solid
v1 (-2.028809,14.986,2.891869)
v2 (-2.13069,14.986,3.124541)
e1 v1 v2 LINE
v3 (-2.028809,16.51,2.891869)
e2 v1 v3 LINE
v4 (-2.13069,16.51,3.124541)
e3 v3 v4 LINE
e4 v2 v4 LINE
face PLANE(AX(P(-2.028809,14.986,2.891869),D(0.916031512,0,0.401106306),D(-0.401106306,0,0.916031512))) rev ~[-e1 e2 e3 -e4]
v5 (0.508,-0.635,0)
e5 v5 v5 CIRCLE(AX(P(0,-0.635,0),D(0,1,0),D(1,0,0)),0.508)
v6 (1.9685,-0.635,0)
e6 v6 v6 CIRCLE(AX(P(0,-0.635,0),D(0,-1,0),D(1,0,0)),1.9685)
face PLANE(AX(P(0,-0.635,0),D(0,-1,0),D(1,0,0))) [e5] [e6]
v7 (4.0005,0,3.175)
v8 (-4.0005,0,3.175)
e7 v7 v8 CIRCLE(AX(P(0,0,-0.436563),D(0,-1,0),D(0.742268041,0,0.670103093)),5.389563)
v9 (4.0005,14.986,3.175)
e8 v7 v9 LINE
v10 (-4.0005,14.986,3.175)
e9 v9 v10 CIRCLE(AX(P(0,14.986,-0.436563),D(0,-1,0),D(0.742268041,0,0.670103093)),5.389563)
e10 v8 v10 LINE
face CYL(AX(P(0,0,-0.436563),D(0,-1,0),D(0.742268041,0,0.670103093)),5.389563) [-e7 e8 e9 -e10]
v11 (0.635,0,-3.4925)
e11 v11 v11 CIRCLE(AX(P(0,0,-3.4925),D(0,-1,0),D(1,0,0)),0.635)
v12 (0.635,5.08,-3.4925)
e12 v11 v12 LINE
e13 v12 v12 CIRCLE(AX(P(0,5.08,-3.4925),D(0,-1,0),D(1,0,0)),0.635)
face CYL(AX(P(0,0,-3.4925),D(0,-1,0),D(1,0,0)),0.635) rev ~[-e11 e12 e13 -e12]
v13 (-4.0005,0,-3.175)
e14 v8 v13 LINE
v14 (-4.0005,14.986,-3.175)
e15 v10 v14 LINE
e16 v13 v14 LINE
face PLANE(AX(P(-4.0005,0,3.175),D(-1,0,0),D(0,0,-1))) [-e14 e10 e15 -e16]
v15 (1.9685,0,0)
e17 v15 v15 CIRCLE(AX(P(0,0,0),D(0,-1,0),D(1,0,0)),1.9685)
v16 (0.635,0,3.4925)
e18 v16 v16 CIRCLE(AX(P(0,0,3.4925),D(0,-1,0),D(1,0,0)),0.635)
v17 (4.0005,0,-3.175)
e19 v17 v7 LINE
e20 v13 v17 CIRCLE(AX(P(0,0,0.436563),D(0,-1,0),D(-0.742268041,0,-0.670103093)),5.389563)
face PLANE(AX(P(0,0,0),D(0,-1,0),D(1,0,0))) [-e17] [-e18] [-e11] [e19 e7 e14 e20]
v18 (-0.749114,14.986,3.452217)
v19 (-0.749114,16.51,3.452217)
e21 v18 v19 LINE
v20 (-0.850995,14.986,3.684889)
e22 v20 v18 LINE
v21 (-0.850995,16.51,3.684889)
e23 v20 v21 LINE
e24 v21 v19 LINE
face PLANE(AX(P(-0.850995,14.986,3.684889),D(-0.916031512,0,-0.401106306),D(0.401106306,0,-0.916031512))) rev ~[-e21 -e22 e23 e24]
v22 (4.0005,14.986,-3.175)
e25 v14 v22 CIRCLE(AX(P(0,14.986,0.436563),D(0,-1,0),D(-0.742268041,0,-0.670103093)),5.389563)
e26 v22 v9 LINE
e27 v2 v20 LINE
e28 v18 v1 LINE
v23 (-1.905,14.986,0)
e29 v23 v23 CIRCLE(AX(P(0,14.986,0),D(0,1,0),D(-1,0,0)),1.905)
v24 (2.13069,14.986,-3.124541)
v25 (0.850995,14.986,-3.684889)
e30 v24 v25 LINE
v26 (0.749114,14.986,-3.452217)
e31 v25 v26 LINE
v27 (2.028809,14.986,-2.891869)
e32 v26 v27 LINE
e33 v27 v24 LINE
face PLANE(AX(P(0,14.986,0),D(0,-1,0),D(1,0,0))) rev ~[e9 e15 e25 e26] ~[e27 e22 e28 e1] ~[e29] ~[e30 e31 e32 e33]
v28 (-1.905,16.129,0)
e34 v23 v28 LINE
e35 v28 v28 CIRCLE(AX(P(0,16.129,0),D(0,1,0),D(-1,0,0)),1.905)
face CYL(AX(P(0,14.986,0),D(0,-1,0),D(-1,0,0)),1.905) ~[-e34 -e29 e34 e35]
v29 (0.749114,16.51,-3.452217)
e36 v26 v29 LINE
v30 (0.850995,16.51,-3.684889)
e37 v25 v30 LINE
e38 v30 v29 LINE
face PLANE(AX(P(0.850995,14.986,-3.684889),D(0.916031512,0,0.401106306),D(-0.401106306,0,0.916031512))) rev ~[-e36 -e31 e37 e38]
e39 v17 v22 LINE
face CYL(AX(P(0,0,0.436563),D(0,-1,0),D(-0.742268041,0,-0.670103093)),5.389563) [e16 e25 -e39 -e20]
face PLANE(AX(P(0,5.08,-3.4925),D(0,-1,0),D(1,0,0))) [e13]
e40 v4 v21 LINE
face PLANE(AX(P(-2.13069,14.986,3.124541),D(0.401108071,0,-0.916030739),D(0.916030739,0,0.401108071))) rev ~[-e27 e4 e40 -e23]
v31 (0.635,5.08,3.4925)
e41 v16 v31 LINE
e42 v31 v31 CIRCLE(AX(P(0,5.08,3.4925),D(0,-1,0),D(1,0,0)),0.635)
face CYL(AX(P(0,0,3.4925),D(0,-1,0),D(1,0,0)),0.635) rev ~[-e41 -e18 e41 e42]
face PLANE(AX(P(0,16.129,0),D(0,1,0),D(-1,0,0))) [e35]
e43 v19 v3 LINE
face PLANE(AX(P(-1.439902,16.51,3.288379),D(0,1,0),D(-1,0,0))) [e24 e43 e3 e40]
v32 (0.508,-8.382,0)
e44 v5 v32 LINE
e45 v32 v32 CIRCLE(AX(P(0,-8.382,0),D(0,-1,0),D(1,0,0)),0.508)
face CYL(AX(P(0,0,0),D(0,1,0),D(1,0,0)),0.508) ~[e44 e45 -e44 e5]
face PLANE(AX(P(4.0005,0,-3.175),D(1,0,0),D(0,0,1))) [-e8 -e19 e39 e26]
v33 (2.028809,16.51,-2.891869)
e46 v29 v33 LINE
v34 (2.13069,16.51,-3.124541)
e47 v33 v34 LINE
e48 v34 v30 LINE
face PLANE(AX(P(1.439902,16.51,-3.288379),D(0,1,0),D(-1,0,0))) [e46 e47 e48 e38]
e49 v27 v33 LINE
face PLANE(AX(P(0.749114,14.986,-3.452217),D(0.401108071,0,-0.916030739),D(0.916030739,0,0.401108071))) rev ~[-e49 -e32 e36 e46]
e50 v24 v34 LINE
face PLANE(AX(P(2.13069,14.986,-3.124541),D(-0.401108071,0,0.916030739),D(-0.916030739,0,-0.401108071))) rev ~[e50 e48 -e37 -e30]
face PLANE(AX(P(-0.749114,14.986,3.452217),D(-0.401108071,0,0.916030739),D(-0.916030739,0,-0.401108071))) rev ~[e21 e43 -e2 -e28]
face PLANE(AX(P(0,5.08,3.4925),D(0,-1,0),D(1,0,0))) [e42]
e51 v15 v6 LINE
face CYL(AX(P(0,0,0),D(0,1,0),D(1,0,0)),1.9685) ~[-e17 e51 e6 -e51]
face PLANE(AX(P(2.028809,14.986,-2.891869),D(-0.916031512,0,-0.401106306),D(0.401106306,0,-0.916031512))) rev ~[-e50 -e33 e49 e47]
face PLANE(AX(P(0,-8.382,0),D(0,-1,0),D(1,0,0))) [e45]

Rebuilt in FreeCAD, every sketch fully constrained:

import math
import FreeCAD as App
import Part
import Sketcher
from FreeCAD import Vector
Q = App.Units.Quantity


def add_polygon(sketch, points):
    """Adds a closed chain of lines whose ends are joined by coincident constraints."""
    first, n = sketch.GeometryCount, len(points)
    for a, b in zip(points, points[1:] + points[:1]):
        sketch.addGeometry(Part.LineSegment(App.Vector(*a, 0), App.Vector(*b, 0)), False)
    for i in range(n):
        sketch.addConstraint(Sketcher.Constraint("Coincident", first + i, 2, first + (i + 1) % n, 1))

doc = App.newDocument("Part")
body = doc.addObject("PartDesign::Body", "Body")

sketch1 = body.newObject("Sketcher::SketchObject", "Sketch")
sketch1.AttachmentSupport = (doc.getObject("XZ_Plane"), [""])
sketch1.MapMode = "FlatFace"
sketch1.addGeometry(Part.LineSegment(Vector(4, -3, 0), Vector(4, 3, 0)), False)
sketch1.addGeometry(Part.ArcOfCircle(Part.Circle(Vector(0, 0, 0), Vector(0, 0, 1), 5), math.radians(42), math.radians(138)), False)
sketch1.addGeometry(Part.LineSegment(Vector(-4, 3, 0), Vector(-4, -3, 0)), False)
sketch1.addGeometry(Part.ArcOfCircle(Part.Circle(Vector(0, 0, 0), Vector(0, 0, 1), 5), math.radians(-138), math.radians(-42)), False)
sketch1.addConstraint(Sketcher.Constraint("Coincident", 0, 2, 1, 1))
sketch1.addConstraint(Sketcher.Constraint("Coincident", 1, 2, 2, 1))
sketch1.addConstraint(Sketcher.Constraint("Coincident", 2, 2, 3, 1))
sketch1.addConstraint(Sketcher.Constraint("Coincident", 3, 2, 0, 1))
sketch1.addConstraint(Sketcher.Constraint("Vertical", 0))
sketch1.addConstraint(Sketcher.Constraint("Vertical", 2))
sketch1.addConstraint(Sketcher.Constraint("Equal", 1, 3))
sketch1.addConstraint(Sketcher.Constraint("Symmetric", 1, 3, 3, 3, -1, 1))
sketch1.addConstraint(Sketcher.Constraint("Symmetric", 0, 2, 1, 2, -2))
sketch1.addConstraint(Sketcher.Constraint("DistanceY", 0, 1, 0, 2, Q("0.25 in")))
sketch1.addConstraint(Sketcher.Constraint("DistanceX", 1, 2, 0, 2, Q("0.315 in")))
sketch1.addConstraint(Sketcher.Constraint("Radius", 1, Q("5.389563 mm")))
pad1 = body.newObject("PartDesign::Pad", "Pad")
pad1.Profile = sketch1
pad1.Length = Q("0.59 in")
pad1.Reversed = True

sketch2 = body.newObject("Sketcher::SketchObject", "Sketch001")
sketch2.AttachmentSupport = (doc.getObject("XZ_Plane"), [""])
sketch2.MapMode = "FlatFace"
sketch2.addGeometry(Part.Circle(Vector(0, 0, 0), Vector(0, 0, 1), 0.5), False)
sketch2.addConstraint(Sketcher.Constraint("Coincident", 0, 3, -1, 1))
sketch2.addConstraint(Sketcher.Constraint("Diameter", 0, Q("0.04 in")))
pad2 = body.newObject("PartDesign::Pad", "Pad001")
pad2.Profile = sketch2
pad2.Length = Q("0.33 in")

sketch3 = body.newObject("Sketcher::SketchObject", "Sketch002")
sketch3.AttachmentSupport = (doc.getObject("XZ_Plane"), [""])
sketch3.MapMode = "FlatFace"
sketch3.addGeometry(Part.Circle(Vector(0, 3.5, 0), Vector(0, 0, 1), 0.6), False)
sketch3.addGeometry(Part.Circle(Vector(0, -3.5, 0), Vector(0, 0, 1), 0.6), False)
sketch3.addConstraint(Sketcher.Constraint("Equal", 0, 1))
sketch3.addConstraint(Sketcher.Constraint("Symmetric", 0, 3, 1, 3, -1, 1))
sketch3.addConstraint(Sketcher.Constraint("PointOnObject", 0, 3, -2))
sketch3.addConstraint(Sketcher.Constraint("Diameter", 0, Q("0.05 in")))
sketch3.addConstraint(Sketcher.Constraint("DistanceY", 1, 3, 0, 3, Q("0.275 in")))
pocket1 = body.newObject("PartDesign::Pocket", "Pocket")
pocket1.Profile = sketch3
pocket1.Length = Q("0.2 in")

sketch4 = body.newObject("Sketcher::SketchObject", "Sketch003")
sketch4.AttachmentSupport = (doc.getObject("XZ_Plane"), [""])
sketch4.MapMode = "FlatFace"
sketch4.addGeometry(Part.Circle(Vector(0, 0, 0), Vector(0, 0, 1), 2), False)
sketch4.addConstraint(Sketcher.Constraint("Coincident", 0, 3, -1, 1))
sketch4.addConstraint(Sketcher.Constraint("Diameter", 0, Q("0.155 in")))
pad3 = body.newObject("PartDesign::Pad", "Pad002")
pad3.Profile = sketch4
pad3.Length = Q("0.025 in")

sketch5 = body.newObject("Sketcher::SketchObject", "Sketch004")
sketch5.AttachmentSupport = (doc.getObject("XZ_Plane"), [""])
sketch5.MapMode = "FlatFace"
sketch5.AttachmentOffset = App.Placement(Vector(0, 0, -0.59 * 25.4), App.Rotation())
sketch5.addGeometry(Part.Circle(Vector(0, 0, 0), Vector(0, 0, 1), 1.9), False)
sketch5.addConstraint(Sketcher.Constraint("Coincident", 0, 3, -1, 1))
sketch5.addConstraint(Sketcher.Constraint("Diameter", 0, Q("0.15 in")))
pad4 = body.newObject("PartDesign::Pad", "Pad003")
pad4.Profile = sketch5
pad4.Length = Q("0.045 in")
pad4.Reversed = True

sketch6 = body.newObject("Sketcher::SketchObject", "Sketch005")
sketch6.AttachmentSupport = (doc.getObject("XZ_Plane"), [""])
sketch6.MapMode = "FlatFace"
sketch6.AttachmentOffset = App.Placement(Vector(0, 0, -0.59 * 25.4), App.Rotation())
add_polygon(sketch6, [(2.03, -2.89), (2.13, -3.12), (0.85, -3.68), (0.75, -3.45)])
add_polygon(sketch6, [(-0.85, 3.68), (-0.75, 3.45), (-2.03, 2.89), (-2.13, 3.12)])
sketch6.addConstraint(Sketcher.Constraint("Symmetric", 2, 2, 4, 2, -1, 1))
sketch6.addConstraint(Sketcher.Constraint("Symmetric", 3, 2, 5, 2, -1, 1))
sketch6.addConstraint(Sketcher.Constraint("Symmetric", 0, 2, 6, 2, -1, 1))
sketch6.addConstraint(Sketcher.Constraint("Symmetric", 1, 2, 7, 2, -1, 1))
sketch6.addConstraint(Sketcher.Constraint("Perpendicular", 0, 1))
sketch6.addConstraint(Sketcher.Constraint("Perpendicular", 1, 2))
sketch6.addConstraint(Sketcher.Constraint("Perpendicular", 2, 3))
sketch6.addConstraint(Sketcher.Constraint("Distance", 0, Q("0.01 in")))
sketch6.addConstraint(Sketcher.Constraint("Distance", 1, Q("0.055 in")))
sketch6.addConstraint(Sketcher.Constraint("DistanceX", 5, 2, 0, 2, Q("4.159499 mm")))
sketch6.addConstraint(Sketcher.Constraint("DistanceX", -1, 1, 0, 2, Q("2.13069 mm")))
sketch6.addConstraint(Sketcher.Constraint("DistanceY", 0, 2, -1, 1, Q("3.124541 mm")))
pad5 = body.newObject("PartDesign::Pad", "Pad004")
pad5.Profile = sketch6
pad5.Length = Q("0.06 in")
pad5.Reversed = True

doc.recompute()
